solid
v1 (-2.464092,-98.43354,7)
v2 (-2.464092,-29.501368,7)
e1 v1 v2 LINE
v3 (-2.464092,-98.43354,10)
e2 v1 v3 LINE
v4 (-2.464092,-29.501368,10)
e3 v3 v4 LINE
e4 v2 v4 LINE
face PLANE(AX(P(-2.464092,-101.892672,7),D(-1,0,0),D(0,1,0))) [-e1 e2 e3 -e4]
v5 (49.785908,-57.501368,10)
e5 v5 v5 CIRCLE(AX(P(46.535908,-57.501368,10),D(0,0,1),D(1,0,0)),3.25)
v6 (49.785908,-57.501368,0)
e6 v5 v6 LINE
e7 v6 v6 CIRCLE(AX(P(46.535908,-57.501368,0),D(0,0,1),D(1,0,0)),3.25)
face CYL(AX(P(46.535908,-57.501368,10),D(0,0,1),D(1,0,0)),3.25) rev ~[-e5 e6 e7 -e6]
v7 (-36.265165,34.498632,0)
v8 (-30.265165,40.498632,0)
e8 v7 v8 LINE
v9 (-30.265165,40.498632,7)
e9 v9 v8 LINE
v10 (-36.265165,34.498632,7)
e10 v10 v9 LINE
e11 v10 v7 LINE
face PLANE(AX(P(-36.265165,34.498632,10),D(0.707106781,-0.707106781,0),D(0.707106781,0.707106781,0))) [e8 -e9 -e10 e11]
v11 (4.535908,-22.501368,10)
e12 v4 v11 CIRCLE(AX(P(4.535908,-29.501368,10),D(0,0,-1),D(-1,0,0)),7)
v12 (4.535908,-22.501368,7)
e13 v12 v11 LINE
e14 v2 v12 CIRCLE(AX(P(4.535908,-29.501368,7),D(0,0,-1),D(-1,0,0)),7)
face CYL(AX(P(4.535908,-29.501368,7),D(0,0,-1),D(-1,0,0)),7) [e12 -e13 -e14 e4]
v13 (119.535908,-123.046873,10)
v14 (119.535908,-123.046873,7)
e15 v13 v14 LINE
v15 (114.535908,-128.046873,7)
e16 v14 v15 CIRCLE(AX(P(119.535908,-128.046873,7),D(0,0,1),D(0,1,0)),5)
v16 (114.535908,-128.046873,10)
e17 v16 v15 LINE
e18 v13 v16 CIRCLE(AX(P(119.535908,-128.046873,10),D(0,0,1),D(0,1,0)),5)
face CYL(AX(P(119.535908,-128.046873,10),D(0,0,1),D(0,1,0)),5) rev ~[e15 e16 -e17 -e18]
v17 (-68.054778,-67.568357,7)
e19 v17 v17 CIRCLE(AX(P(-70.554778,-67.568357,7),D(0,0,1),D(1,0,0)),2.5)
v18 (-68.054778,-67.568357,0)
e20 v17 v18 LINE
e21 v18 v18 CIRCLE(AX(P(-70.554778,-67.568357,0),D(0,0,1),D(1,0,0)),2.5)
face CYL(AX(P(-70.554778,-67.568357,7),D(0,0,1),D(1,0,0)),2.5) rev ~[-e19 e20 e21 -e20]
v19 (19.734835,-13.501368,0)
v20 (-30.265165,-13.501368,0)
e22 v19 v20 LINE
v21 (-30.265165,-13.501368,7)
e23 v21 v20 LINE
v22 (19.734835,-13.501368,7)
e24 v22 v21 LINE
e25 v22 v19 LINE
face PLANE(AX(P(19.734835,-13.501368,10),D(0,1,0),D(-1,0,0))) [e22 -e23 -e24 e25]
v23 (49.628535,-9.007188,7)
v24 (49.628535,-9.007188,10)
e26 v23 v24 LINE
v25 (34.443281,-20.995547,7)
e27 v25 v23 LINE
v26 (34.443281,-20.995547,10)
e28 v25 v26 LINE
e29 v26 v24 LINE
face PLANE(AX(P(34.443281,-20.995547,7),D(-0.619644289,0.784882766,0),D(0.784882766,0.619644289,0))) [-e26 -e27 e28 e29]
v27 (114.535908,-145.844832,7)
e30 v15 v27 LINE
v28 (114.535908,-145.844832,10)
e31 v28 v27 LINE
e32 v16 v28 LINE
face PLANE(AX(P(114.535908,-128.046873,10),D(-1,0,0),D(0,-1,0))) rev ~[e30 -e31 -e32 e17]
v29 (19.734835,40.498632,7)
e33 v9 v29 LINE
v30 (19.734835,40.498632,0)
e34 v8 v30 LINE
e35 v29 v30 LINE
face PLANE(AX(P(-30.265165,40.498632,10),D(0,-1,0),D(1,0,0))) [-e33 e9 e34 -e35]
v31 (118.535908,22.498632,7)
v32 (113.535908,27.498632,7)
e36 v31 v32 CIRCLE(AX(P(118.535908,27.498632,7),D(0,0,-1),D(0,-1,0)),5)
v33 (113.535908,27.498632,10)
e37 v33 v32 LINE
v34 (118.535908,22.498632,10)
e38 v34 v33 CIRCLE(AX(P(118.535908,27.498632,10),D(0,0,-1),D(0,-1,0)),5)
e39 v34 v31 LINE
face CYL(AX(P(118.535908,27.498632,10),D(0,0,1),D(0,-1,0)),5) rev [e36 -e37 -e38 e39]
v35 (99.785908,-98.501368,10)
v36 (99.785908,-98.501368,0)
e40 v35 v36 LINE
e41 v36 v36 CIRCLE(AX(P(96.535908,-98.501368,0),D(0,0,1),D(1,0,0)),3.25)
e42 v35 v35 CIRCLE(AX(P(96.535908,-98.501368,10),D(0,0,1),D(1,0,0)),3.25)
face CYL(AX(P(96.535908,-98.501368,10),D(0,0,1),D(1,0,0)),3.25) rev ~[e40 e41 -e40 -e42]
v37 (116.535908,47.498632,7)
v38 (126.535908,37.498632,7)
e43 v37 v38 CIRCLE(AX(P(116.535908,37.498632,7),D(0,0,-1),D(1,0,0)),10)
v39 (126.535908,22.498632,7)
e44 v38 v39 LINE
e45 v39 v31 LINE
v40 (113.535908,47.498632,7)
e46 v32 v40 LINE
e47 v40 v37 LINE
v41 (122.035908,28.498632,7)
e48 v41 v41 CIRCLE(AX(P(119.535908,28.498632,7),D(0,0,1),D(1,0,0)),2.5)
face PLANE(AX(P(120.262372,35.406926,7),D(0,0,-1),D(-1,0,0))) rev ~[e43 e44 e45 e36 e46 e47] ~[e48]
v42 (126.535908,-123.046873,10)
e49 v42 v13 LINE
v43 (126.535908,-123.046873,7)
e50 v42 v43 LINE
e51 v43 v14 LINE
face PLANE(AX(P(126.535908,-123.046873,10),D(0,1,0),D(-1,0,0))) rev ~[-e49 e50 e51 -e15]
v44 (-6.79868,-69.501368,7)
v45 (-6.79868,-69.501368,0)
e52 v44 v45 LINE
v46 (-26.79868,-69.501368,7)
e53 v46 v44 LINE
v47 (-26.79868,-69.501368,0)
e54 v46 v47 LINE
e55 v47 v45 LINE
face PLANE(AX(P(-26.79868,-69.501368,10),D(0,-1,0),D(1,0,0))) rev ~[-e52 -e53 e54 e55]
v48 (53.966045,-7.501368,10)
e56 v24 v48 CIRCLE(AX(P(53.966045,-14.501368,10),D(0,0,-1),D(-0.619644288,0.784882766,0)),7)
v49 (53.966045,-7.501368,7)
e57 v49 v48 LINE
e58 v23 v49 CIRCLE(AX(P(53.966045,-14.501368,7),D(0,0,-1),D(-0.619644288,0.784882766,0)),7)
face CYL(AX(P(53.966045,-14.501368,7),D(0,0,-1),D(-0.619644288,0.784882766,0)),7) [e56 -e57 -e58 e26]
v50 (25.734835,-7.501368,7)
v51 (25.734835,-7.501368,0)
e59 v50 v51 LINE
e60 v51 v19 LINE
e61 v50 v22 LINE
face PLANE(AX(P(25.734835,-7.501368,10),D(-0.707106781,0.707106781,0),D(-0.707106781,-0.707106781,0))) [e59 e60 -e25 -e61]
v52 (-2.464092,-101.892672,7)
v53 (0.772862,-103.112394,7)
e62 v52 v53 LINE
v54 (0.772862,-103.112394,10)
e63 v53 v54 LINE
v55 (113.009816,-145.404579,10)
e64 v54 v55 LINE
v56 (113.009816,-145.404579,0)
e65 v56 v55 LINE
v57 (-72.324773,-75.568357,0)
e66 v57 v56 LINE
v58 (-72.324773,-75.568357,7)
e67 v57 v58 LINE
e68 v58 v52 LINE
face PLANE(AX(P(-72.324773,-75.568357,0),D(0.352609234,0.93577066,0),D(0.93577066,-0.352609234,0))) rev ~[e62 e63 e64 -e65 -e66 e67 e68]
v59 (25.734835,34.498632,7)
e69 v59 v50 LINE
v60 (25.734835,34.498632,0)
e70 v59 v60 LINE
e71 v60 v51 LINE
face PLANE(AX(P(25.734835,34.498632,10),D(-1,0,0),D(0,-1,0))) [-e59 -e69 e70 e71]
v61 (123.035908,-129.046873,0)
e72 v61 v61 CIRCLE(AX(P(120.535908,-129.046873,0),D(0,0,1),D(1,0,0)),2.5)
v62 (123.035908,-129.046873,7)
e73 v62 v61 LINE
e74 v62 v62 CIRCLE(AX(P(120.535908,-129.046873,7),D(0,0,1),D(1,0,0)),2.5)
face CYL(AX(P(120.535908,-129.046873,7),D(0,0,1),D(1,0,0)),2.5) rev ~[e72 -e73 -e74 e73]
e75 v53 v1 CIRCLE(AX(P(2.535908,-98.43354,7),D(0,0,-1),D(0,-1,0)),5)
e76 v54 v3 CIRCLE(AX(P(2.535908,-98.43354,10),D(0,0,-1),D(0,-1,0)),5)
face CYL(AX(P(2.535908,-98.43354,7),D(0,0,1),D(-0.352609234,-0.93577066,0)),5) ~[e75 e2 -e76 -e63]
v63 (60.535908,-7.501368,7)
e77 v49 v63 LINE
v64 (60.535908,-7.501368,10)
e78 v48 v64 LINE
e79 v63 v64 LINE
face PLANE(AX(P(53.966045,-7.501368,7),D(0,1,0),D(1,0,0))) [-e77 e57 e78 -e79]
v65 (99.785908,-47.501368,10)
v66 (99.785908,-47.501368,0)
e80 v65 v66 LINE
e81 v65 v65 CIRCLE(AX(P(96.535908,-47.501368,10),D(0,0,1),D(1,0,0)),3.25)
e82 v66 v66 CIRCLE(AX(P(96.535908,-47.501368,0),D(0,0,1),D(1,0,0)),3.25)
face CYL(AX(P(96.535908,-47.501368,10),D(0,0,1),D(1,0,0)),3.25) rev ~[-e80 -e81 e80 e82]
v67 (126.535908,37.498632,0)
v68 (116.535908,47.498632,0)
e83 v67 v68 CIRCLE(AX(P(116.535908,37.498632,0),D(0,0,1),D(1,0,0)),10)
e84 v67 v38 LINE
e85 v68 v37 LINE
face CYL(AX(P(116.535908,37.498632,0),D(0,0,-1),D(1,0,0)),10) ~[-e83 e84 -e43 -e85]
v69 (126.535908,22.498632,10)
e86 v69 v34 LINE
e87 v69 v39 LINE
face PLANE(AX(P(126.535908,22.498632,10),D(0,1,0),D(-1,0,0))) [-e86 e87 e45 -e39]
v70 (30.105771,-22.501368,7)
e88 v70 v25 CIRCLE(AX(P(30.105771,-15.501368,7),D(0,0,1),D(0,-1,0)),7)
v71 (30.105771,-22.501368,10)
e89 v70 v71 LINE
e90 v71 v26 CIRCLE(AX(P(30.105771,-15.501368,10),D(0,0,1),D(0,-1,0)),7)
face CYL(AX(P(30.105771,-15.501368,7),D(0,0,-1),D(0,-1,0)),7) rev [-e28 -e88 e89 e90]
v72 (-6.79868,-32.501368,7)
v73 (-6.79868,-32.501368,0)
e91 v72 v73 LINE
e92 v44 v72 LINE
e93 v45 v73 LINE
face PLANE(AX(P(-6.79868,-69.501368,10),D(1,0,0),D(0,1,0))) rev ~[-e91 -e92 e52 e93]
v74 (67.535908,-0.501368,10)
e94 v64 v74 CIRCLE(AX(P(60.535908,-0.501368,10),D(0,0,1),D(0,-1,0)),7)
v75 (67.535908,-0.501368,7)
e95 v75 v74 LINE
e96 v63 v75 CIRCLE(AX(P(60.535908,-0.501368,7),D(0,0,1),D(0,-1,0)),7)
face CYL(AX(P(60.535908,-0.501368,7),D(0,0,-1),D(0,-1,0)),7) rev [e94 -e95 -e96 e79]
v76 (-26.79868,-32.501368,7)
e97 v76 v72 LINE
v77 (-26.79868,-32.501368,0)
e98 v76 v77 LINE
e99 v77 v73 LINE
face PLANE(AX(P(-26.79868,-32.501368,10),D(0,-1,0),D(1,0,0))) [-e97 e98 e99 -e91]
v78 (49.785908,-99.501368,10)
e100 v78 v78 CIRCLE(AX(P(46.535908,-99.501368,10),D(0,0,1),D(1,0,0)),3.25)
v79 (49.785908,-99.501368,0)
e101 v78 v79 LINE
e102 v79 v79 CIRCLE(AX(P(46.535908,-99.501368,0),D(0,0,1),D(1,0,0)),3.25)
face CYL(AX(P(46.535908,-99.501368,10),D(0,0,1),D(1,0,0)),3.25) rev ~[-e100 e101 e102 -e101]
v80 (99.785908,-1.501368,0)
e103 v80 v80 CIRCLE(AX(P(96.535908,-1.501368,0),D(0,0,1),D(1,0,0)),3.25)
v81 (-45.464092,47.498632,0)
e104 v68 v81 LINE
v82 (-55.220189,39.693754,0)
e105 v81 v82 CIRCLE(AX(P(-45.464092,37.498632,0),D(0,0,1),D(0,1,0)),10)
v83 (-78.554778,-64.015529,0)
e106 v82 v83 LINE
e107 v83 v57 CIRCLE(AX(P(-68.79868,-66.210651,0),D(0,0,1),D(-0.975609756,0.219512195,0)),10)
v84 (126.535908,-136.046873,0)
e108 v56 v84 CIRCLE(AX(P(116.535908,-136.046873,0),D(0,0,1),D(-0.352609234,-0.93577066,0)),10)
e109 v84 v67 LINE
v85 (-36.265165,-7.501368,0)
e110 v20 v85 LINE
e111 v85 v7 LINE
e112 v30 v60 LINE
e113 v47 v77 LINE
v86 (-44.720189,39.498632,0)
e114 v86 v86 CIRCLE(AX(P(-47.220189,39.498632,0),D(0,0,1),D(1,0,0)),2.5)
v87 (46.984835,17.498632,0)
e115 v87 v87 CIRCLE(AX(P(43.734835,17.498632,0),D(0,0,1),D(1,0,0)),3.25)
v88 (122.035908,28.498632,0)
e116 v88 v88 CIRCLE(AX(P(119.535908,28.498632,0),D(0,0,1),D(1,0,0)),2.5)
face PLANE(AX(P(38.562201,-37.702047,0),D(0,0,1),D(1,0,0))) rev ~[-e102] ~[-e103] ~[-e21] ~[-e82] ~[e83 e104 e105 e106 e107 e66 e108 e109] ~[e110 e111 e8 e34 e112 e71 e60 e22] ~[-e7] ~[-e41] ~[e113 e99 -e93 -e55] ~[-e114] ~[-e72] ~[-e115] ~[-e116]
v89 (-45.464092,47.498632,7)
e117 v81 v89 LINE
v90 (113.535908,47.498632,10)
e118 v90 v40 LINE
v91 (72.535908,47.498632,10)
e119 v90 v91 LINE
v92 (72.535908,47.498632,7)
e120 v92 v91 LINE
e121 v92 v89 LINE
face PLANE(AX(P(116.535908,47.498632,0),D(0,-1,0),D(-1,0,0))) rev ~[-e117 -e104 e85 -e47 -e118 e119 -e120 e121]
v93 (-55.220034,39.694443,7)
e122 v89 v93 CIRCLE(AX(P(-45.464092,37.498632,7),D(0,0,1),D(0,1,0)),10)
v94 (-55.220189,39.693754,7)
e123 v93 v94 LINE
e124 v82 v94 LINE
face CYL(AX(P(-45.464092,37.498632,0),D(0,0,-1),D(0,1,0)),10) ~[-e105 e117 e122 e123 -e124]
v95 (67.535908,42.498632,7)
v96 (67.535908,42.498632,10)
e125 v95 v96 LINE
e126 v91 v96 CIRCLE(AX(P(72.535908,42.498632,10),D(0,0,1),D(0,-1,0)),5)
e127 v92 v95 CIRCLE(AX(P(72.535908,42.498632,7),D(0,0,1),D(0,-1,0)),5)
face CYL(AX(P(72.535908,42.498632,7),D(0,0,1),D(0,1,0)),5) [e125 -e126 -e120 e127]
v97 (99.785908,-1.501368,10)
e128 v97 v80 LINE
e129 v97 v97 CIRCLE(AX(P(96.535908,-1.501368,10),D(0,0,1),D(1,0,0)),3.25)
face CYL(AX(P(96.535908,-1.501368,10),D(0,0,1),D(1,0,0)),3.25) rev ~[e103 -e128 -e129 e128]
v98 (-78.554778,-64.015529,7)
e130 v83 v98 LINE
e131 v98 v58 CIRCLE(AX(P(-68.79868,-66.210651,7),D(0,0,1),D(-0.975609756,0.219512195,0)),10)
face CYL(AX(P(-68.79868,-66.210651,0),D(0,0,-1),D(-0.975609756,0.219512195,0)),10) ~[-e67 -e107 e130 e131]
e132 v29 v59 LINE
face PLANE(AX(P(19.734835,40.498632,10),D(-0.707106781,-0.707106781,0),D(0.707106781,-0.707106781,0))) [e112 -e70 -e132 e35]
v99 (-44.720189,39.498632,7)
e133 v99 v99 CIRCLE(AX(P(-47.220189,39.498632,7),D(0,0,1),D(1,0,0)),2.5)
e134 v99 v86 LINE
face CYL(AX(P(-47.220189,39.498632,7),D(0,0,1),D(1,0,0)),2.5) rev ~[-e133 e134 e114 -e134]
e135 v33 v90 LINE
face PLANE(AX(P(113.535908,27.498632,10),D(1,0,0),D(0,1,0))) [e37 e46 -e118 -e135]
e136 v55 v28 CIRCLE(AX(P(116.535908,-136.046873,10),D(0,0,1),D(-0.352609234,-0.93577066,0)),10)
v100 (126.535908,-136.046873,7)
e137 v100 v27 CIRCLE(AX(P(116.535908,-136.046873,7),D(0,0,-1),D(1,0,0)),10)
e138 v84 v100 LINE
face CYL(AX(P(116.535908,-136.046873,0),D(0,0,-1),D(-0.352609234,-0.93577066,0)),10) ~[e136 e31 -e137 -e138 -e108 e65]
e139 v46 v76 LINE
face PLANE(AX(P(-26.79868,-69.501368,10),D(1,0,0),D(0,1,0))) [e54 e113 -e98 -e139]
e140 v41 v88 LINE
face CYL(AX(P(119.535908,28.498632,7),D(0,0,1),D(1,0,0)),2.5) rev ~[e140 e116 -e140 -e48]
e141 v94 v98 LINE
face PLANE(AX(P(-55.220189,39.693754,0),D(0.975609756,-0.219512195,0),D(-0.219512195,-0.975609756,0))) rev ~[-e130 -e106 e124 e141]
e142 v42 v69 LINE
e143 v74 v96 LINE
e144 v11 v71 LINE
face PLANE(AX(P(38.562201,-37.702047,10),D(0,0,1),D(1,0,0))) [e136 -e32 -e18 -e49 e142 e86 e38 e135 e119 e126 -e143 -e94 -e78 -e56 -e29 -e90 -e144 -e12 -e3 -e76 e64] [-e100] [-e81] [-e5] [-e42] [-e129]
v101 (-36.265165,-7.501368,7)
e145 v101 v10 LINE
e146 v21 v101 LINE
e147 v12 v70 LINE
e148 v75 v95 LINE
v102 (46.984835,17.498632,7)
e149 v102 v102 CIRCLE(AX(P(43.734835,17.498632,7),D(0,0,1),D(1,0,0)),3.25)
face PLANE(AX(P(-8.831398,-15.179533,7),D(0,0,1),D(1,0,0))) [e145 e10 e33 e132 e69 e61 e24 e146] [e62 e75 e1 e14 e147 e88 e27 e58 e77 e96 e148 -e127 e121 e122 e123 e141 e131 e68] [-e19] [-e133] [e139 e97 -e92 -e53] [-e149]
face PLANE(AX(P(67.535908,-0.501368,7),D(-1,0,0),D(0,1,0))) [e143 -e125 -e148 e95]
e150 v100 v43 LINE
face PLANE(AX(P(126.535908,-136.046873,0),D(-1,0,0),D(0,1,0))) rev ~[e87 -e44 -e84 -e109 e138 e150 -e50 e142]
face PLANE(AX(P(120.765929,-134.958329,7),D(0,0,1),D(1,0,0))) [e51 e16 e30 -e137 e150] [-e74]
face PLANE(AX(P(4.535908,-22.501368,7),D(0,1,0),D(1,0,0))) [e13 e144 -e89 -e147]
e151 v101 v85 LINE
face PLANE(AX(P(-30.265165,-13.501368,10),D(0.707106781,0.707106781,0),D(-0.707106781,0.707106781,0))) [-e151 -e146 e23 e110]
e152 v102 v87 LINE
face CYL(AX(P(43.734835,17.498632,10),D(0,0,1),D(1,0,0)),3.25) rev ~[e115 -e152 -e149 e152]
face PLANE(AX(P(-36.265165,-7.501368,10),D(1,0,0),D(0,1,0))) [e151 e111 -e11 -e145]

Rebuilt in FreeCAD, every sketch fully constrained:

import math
import FreeCAD as App
import Part
import Sketcher


def edges_at(feature, points):
    """Names of the edges that pass closest to the given points."""
    edges = feature.Shape.Edges
    near = lambda p: min(range(len(edges)), key=lambda i: edges[i].distToShape(Part.Vertex(*p))[0])
    return sorted({f"Edge{near(p) + 1}" for p in points})

doc = App.newDocument("Part")
params = doc.addObject("Spreadsheet::Sheet", "Params")
for row, (alias, value) in enumerate([
    ("sketch1_radius", "10 mm"),
    ("sketch1_width", "162 mm"),
    ("pad1_length", "10 mm"),
    ("sketch2_diameter", "6.5 mm"),
    ("sketch2_width", "20 mm"),
    ("sketch2_width2", "50 mm"),
    ("sketch2_height", "37 mm"),
    ("sketch2_height2", "42 mm"),
    ("pocket1_length", "10 mm"),
    ("sketch3_radius", "7 mm"),
    ("sketch3_radius2", "10 mm"),
    ("sketch3_diameter", "6.5 mm"),
    ("sketch3_width", "113 mm"),
    ("sketch3_width2", "20 mm"),
    ("pocket2_length", "3 mm"),
    ("fillet_radius", "5 mm"),
    ("sketch4_radius", "5 mm"),
    ("sketch4_width", "8 mm"),
    ("sketch4_width2", "7 mm"),
    ("sketch4_height", "25 mm"),
    ("sketch4_height2", "18 mm"),
    ("pocket3_length", "3 mm"),
    ("sketch5_diameter", "5 mm"),
    ("pocket4_length", "7 mm"),
], start=1):
    params.set(f"A{row}", alias)
    params.set(f"B{row}", "=" + value)
    params.setAlias(f"B{row}", alias)

body = doc.addObject("PartDesign::Body", "Body")

# Sketch on XY plane
sketch1 = body.newObject("Sketcher::SketchObject", "Sketch")
sketch1.AttachmentSupport = (doc.getObject("XY_Plane"), [""])
sketch1.MapMode = "FlatFace"
sketch1.addGeometry(Part.LineSegment(App.Vector(-72, -76, 0), App.Vector(113, -145, 0)), False)
sketch1.addGeometry(Part.ArcOfCircle(Part.Circle(App.Vector(117, -136, 0), App.Vector(0, 0, 1), 10), math.radians(-111), math.radians(0)), False)
sketch1.addGeometry(Part.LineSegment(App.Vector(127, -136, 0), App.Vector(127, 37, 0)), False)
sketch1.addGeometry(Part.ArcOfCircle(Part.Circle(App.Vector(117, 37, 0), App.Vector(0, 0, 1), 10), math.radians(0), math.radians(90)), False)
sketch1.addGeometry(Part.LineSegment(App.Vector(117, 47, 0), App.Vector(-45, 47, 0)), False)
sketch1.addGeometry(Part.ArcOfCircle(Part.Circle(App.Vector(-45, 37, 0), App.Vector(0, 0, 1), 10), math.radians(90), math.radians(167)), False)
sketch1.addGeometry(Part.LineSegment(App.Vector(-55, 40, 0), App.Vector(-79, -64, 0)), False)
sketch1.addGeometry(Part.ArcOfCircle(Part.Circle(App.Vector(-69, -66, 0), App.Vector(0, 0, 1), 10), math.radians(167), math.radians(249)), False)
sketch1.addConstraint(Sketcher.Constraint("Tangent", 0, 2, 1, 1))
sketch1.addConstraint(Sketcher.Constraint("Tangent", 1, 2, 2, 1))
sketch1.addConstraint(Sketcher.Constraint("Tangent", 2, 2, 3, 1))
sketch1.addConstraint(Sketcher.Constraint("Tangent", 3, 2, 4, 1))
sketch1.addConstraint(Sketcher.Constraint("Tangent", 4, 2, 5, 1))
sketch1.addConstraint(Sketcher.Constraint("Tangent", 5, 2, 6, 1))
sketch1.addConstraint(Sketcher.Constraint("Tangent", 6, 2, 7, 1))
sketch1.addConstraint(Sketcher.Constraint("Tangent", 7, 2, 0, 1))
sketch1.addConstraint(Sketcher.Constraint("Vertical", 2))
sketch1.addConstraint(Sketcher.Constraint("Horizontal", 4))
sketch1.addConstraint(Sketcher.Constraint("Equal", 1, 3))
sketch1.addConstraint(Sketcher.Constraint("Equal", 3, 5))
sketch1.addConstraint(Sketcher.Constraint("Equal", 5, 7))
sketch1.addConstraint(Sketcher.Constraint("Radius", 1, 10.0))
sketch1.addConstraint(Sketcher.Constraint("DistanceX", 4, 2, 4, 1, 162.0))
sketch1.addConstraint(Sketcher.Constraint("DistanceY", 2, 1, 2, 2, 173.545505))
sketch1.addConstraint(Sketcher.Constraint("DistanceX", -1, 1, 1, 3, 116.535908))
sketch1.addConstraint(Sketcher.Constraint("DistanceX", 7, 3, -1, 1, 68.79868))
sketch1.addConstraint(Sketcher.Constraint("DistanceY", 7, 3, -1, 1, 66.210651))
sketch1.addConstraint(Sketcher.Constraint("DistanceY", 0, 2, -1, 1, 145.404579))
sketch1.setExpression("Constraints[13]", "Params.sketch1_radius")
sketch1.setExpression("Constraints[14]", "Params.sketch1_width")
pad1 = body.newObject("PartDesign::Pad", "Pad")
pad1.Profile = sketch1
pad1.setExpression("Length", "Params.pad1_length")

# Sketch on XY plane
sketch2 = body.newObject("Sketcher::SketchObject", "Sketch001")
sketch2.AttachmentSupport = (doc.getObject("XY_Plane"), [""])
sketch2.MapMode = "FlatFace"
sketch2.AttachmentOffset = App.Placement(App.Vector(0, 0, 10), App.Rotation())
sketch2.addGeometry(Part.Circle(App.Vector(43.7, 17.5, 0), App.Vector(0, 0, 1), 3.2), False)
sketch2.addGeometry(Part.Circle(App.Vector(96.5, -1.5, 0), App.Vector(0, 0, 1), 3.2), False)
sketch2.addGeometry(Part.Circle(App.Vector(96.5, -47.5, 0), App.Vector(0, 0, 1), 3.2), False)
sketch2.addGeometry(Part.Circle(App.Vector(96.5, -98.5, 0), App.Vector(0, 0, 1), 3.2), False)
sketch2.addGeometry(Part.Circle(App.Vector(46.5, -57.5, 0), App.Vector(0, 0, 1), 3.2), False)
sketch2.addGeometry(Part.Circle(App.Vector(46.5, -99.5, 0), App.Vector(0, 0, 1), 3.2), False)
sketch2.addGeometry(Part.LineSegment(App.Vector(-26.8, -32.5, 0), App.Vector(-26.8, -69.5, 0)), False)
sketch2.addGeometry(Part.LineSegment(App.Vector(-26.8, -69.5, 0), App.Vector(-6.8, -69.5, 0)), False)
sketch2.addGeometry(Part.LineSegment(App.Vector(-6.8, -69.5, 0), App.Vector(-6.8, -32.5, 0)), False)
sketch2.addGeometry(Part.LineSegment(App.Vector(-6.8, -32.5, 0), App.Vector(-26.8, -32.5, 0)), False)
sketch2.addGeometry(Part.LineSegment(App.Vector(19.7, 40.5, 0), App.Vector(-30.3, 40.5, 0)), False)
sketch2.addGeometry(Part.LineSegment(App.Vector(-30.3, 40.5, 0), App.Vector(-36.3, 34.5, 0)), False)
sketch2.addGeometry(Part.LineSegment(App.Vector(-36.3, 34.5, 0), App.Vector(-36.3, -7.5, 0)), False)
sketch2.addGeometry(Part.LineSegment(App.Vector(-36.3, -7.5, 0), App.Vector(-30.3, -13.5, 0)), False)
sketch2.addGeometry(Part.LineSegment(App.Vector(-30.3, -13.5, 0), App.Vector(19.7, -13.5, 0)), False)
sketch2.addGeometry(Part.LineSegment(App.Vector(19.7, -13.5, 0), App.Vector(25.7, -7.5, 0)), False)
sketch2.addGeometry(Part.LineSegment(App.Vector(25.7, -7.5, 0), App.Vector(25.7, 34.5, 0)), False)
sketch2.addGeometry(Part.LineSegment(App.Vector(25.7, 34.5, 0), App.Vector(19.7, 40.5, 0)), False)
sketch2.addConstraint(Sketcher.Constraint("Coincident", 6, 2, 7, 1))
sketch2.addConstraint(Sketcher.Constraint("Coincident", 7, 2, 8, 1))
sketch2.addConstraint(Sketcher.Constraint("Coincident", 8, 2, 9, 1))
sketch2.addConstraint(Sketcher.Constraint("Coincident", 9, 2, 6, 1))
sketch2.addConstraint(Sketcher.Constraint("Coincident", 10, 2, 11, 1))
sketch2.addConstraint(Sketcher.Constraint("Coincident", 11, 2, 12, 1))
sketch2.addConstraint(Sketcher.Constraint("Coincident", 12, 2, 13, 1))
sketch2.addConstraint(Sketcher.Constraint("Coincident", 13, 2, 14, 1))
sketch2.addConstraint(Sketcher.Constraint("Coincident", 14, 2, 15, 1))
sketch2.addConstraint(Sketcher.Constraint("Coincident", 15, 2, 16, 1))
sketch2.addConstraint(Sketcher.Constraint("Coincident", 16, 2, 17, 1))
sketch2.addConstraint(Sketcher.Constraint("Coincident", 17, 2, 10, 1))
sketch2.addConstraint(Sketcher.Constraint("Vertical", 6))
sketch2.addConstraint(Sketcher.Constraint("Horizontal", 7))
sketch2.addConstraint(Sketcher.Constraint("Vertical", 8))
sketch2.addConstraint(Sketcher.Constraint("Horizontal", 9))
sketch2.addConstraint(Sketcher.Constraint("Horizontal", 10))
sketch2.addConstraint(Sketcher.Constraint("Vertical", 12))
sketch2.addConstraint(Sketcher.Constraint("Horizontal", 14))
sketch2.addConstraint(Sketcher.Constraint("Vertical", 16))
sketch2.addConstraint(Sketcher.Constraint("Equal", 0, 1))
sketch2.addConstraint(Sketcher.Constraint("Equal", 1, 2))
sketch2.addConstraint(Sketcher.Constraint("Equal", 2, 3))
sketch2.addConstraint(Sketcher.Constraint("Equal", 3, 4))
sketch2.addConstraint(Sketcher.Constraint("Equal", 4, 5))
sketch2.addConstraint(Sketcher.Constraint("Perpendicular", 11, 13))
sketch2.addConstraint(Sketcher.Constraint("Perpendicular", 13, 15))
sketch2.addConstraint(Sketcher.Constraint("Perpendicular", 15, 17))
sketch2.addConstraint(Sketcher.Constraint("Horizontal", 12, 2, 15, 2))
sketch2.addConstraint(Sketcher.Constraint("Horizontal", 11, 2, 16, 2))
sketch2.addConstraint(Sketcher.Constraint("Vertical", 1, 3, 2, 3))
sketch2.addConstraint(Sketcher.Constraint("Vertical", 2, 3, 3, 3))
sketch2.addConstraint(Sketcher.Constraint("Vertical", 4, 3, 5, 3))
sketch2.addConstraint(Sketcher.Constraint("Vertical", 10, 2, 13, 2))
sketch2.addConstraint(Sketcher.Constraint("Vertical", 14, 2, 17, 2))
sketch2.addConstraint(Sketcher.Constraint("Diameter", 0, 6.5))
sketch2.addConstraint(Sketcher.Constraint("DistanceX", 7, 1, 7, 2, 20.0))
sketch2.addConstraint(Sketcher.Constraint("DistanceX", 10, 2, 10, 1, 50.0))
sketch2.addConstraint(Sketcher.Constraint("DistanceY", 6, 2, 6, 1, 37.0))
sketch2.addConstraint(Sketcher.Constraint("DistanceY", 12, 2, 12, 1, 42.0))
sketch2.addConstraint(Sketcher.Constraint("DistanceY", 1, 3, 0, 3, 19.0))
sketch2.addConstraint(Sketcher.Constraint("DistanceY", 2, 3, 1, 3, 46.0))
sketch2.addConstraint(Sketcher.Constraint("DistanceY", 3, 3, 2, 3, 51.0))
sketch2.addConstraint(Sketcher.Constraint("DistanceX", 4, 3, 2, 3, 50.0))
sketch2.addConstraint(Sketcher.Constraint("DistanceY", 4, 3, 2, 3, 10.0))
sketch2.addConstraint(Sketcher.Constraint("DistanceY", 5, 3, 4, 3, 42.0))
sketch2.addConstraint(Sketcher.Constraint("DistanceY", 6, 2, 4, 3, 12.0))
sketch2.addConstraint(Sketcher.Constraint("DistanceY", 9, 2, 10, 2, 73.0))
sketch2.addConstraint(Sketcher.Constraint("DistanceX", 10, 2, 0, 3, 74.0))
sketch2.addConstraint(Sketcher.Constraint("DistanceX", 11, 2, 10, 2, 6.0))
sketch2.addConstraint(Sketcher.Constraint("DistanceX", -1, 1, 1, 3, 96.535908))
sketch2.addConstraint(Sketcher.Constraint("DistanceX", 6, 2, -1, 1, 26.79868))
sketch2.addConstraint(Sketcher.Constraint("DistanceX", -1, 1, 0, 3, 43.734835))
sketch2.addConstraint(Sketcher.Constraint("DistanceY", -1, 1, 0, 3, 17.498632))
sketch2.setExpression("Constraints[35]", "Params.sketch2_diameter")
sketch2.setExpression("Constraints[36]", "Params.sketch2_width")
sketch2.setExpression("Constraints[37]", "Params.sketch2_width2")
sketch2.setExpression("Constraints[38]", "Params.sketch2_height")
sketch2.setExpression("Constraints[39]", "Params.sketch2_height2")
pocket1 = body.newObject("PartDesign::Pocket", "Pocket")
pocket1.Profile = sketch2
pocket1.setExpression("Length", "Params.pocket1_length")

# Sketch on XY plane
sketch3 = body.newObject("Sketcher::SketchObject", "Sketch002")
sketch3.AttachmentSupport = (doc.getObject("XY_Plane"), [""])
sketch3.MapMode = "FlatFace"
sketch3.AttachmentOffset = App.Placement(App.Vector(0, 0, 7), App.Rotation())
sketch3.addGeometry(Part.LineSegment(App.Vector(-72.3248, -75.5684, 0), App.Vector(-2.4641, -101.8927, 0)), False)
sketch3.addGeometry(Part.LineSegment(App.Vector(-2.4641, -101.8927, 0), App.Vector(-2.4641, -29.5014, 0)), False)
sketch3.addGeometry(Part.ArcOfCircle(Part.Circle(App.Vector(4.5359, -29.5014, 0), App.Vector(0, 0, 1), 7), math.radians(90), math.radians(180)), False)
sketch3.addGeometry(Part.LineSegment(App.Vector(4.5359, -22.5014, 0), App.Vector(30.1058, -22.5014, 0)), False)
sketch3.addGeometry(Part.ArcOfCircle(Part.Circle(App.Vector(30.1058, -15.5014, 0), App.Vector(0, 0, 1), 7), math.radians(-90), math.radians(-52)), False)
sketch3.addGeometry(Part.LineSegment(App.Vector(34.4433, -20.9955, 0), App.Vector(49.6285, -9.0072, 0)), False)
sketch3.addGeometry(Part.ArcOfCircle(Part.Circle(App.Vector(53.966, -14.5014, 0), App.Vector(0, 0, 1), 7), math.radians(90), math.radians(128)), False)
sketch3.addGeometry(Part.LineSegment(App.Vector(53.966, -7.5014, 0), App.Vector(60.5359, -7.5014, 0)), False)
sketch3.addGeometry(Part.ArcOfCircle(Part.Circle(App.Vector(60.5359, -0.5014, 0), App.Vector(0, 0, 1), 7), math.radians(-90), math.radians(0)), False)
sketch3.addGeometry(Part.LineSegment(App.Vector(67.5359, -0.5014, 0), App.Vector(67.5359, 47.4986, 0)), False)
sketch3.addGeometry(Part.LineSegment(App.Vector(67.5359, 47.4986, 0), App.Vector(-45.4641, 47.4986, 0)), False)
sketch3.addGeometry(Part.ArcOfCircle(Part.Circle(App.Vector(-45.4641, 37.4986, 0), App.Vector(0, 0, 1), 10), math.radians(90), math.radians(167)), False)
sketch3.addGeometry(Part.LineSegment(App.Vector(-55.22, 39.6944, 0), App.Vector(-55.2202, 39.6938, 0)), False)
sketch3.addGeometry(Part.LineSegment(App.Vector(-55.2202, 39.6938, 0), App.Vector(-78.5548, -64.0155, 0)), False)
sketch3.addGeometry(Part.ArcOfCircle(Part.Circle(App.Vector(-68.7987, -66.2107, 0), App.Vector(0, 0, 1), 10), math.radians(167), math.radians(249)), False)
sketch3.addGeometry(Part.LineSegment(App.Vector(-6.7987, -69.5014, 0), App.Vector(-26.7987, -69.5014, 0)), False)
sketch3.addGeometry(Part.LineSegment(App.Vector(-26.7987, -69.5014, 0), App.Vector(-26.7987, -32.5014, 0)), False)
sketch3.addGeometry(Part.LineSegment(App.Vector(-26.7987, -32.5014, 0), App.Vector(-6.7987, -32.5014, 0)), False)
sketch3.addGeometry(Part.LineSegment(App.Vector(-6.7987, -32.5014, 0), App.Vector(-6.7987, -69.5014, 0)), False)
sketch3.addGeometry(Part.LineSegment(App.Vector(19.7348, -13.5014, 0), App.Vector(-30.2652, -13.5014, 0)), False)
sketch3.addGeometry(Part.LineSegment(App.Vector(-30.2652, -13.5014, 0), App.Vector(-36.2652, -7.5014, 0)), False)
sketch3.addGeometry(Part.LineSegment(App.Vector(-36.2652, -7.5014, 0), App.Vector(-36.2652, 34.4986, 0)), False)
sketch3.addGeometry(Part.LineSegment(App.Vector(-36.2652, 34.4986, 0), App.Vector(-30.2652, 40.4986, 0)), False)
sketch3.addGeometry(Part.LineSegment(App.Vector(-30.2652, 40.4986, 0), App.Vector(19.7348, 40.4986, 0)), False)
sketch3.addGeometry(Part.LineSegment(App.Vector(19.7348, 40.4986, 0), App.Vector(25.7348, 34.4986, 0)), False)
sketch3.addGeometry(Part.LineSegment(App.Vector(25.7348, 34.4986, 0), App.Vector(25.7348, -7.5014, 0)), False)
sketch3.addGeometry(Part.LineSegment(App.Vector(25.7348, -7.5014, 0), App.Vector(19.7348, -13.5014, 0)), False)
sketch3.addGeometry(Part.Circle(App.Vector(43.7348, 17.4986, 0), App.Vector(0, 0, 1), 3.25), False)
sketch3.addConstraint(Sketcher.Constraint("Coincident", 0, 2, 1, 1))
sketch3.addConstraint(Sketcher.Constraint("Tangent", 1, 2, 2, 2))
sketch3.addConstraint(Sketcher.Constraint("Tangent", 2, 1, 3, 1))
sketch3.addConstraint(Sketcher.Constraint("Tangent", 3, 2, 4, 1))
sketch3.addConstraint(Sketcher.Constraint("Tangent", 4, 2, 5, 1))
sketch3.addConstraint(Sketcher.Constraint("Tangent", 5, 2, 6, 2))
sketch3.addConstraint(Sketcher.Constraint("Tangent", 6, 1, 7, 1))
sketch3.addConstraint(Sketcher.Constraint("Tangent", 7, 2, 8, 1))
sketch3.addConstraint(Sketcher.Constraint("Tangent", 8, 2, 9, 1))
sketch3.addConstraint(Sketcher.Constraint("Coincident", 9, 2, 10, 1))
sketch3.addConstraint(Sketcher.Constraint("Tangent", 10, 2, 11, 1))
sketch3.addConstraint(Sketcher.Constraint("Tangent", 11, 2, 12, 1))
sketch3.addConstraint(Sketcher.Constraint("Coincident", 12, 2, 13, 1))
sketch3.addConstraint(Sketcher.Constraint("Tangent", 13, 2, 14, 1))
sketch3.addConstraint(Sketcher.Constraint("Tangent", 14, 2, 0, 1))
sketch3.addConstraint(Sketcher.Constraint("Coincident", 15, 2, 16, 1))
sketch3.addConstraint(Sketcher.Constraint("Coincident", 16, 2, 17, 1))
sketch3.addConstraint(Sketcher.Constraint("Coincident", 17, 2, 18, 1))
sketch3.addConstraint(Sketcher.Constraint("Coincident", 18, 2, 15, 1))
sketch3.addConstraint(Sketcher.Constraint("Coincident", 19, 2, 20, 1))
sketch3.addConstraint(Sketcher.Constraint("Coincident", 20, 2, 21, 1))
sketch3.addConstraint(Sketcher.Constraint("Coincident", 21, 2, 22, 1))
sketch3.addConstraint(Sketcher.Constraint("Coincident", 22, 2, 23, 1))
sketch3.addConstraint(Sketcher.Constraint("Coincident", 23, 2, 24, 1))
sketch3.addConstraint(Sketcher.Constraint("Coincident", 24, 2, 25, 1))
sketch3.addConstraint(Sketcher.Constraint("Coincident", 25, 2, 26, 1))
sketch3.addConstraint(Sketcher.Constraint("Coincident", 26, 2, 19, 1))
sketch3.addConstraint(Sketcher.Constraint("Vertical", 1))
sketch3.addConstraint(Sketcher.Constraint("Horizontal", 3))
sketch3.addConstraint(Sketcher.Constraint("Horizontal", 7))
sketch3.addConstraint(Sketcher.Constraint("Vertical", 9))
sketch3.addConstraint(Sketcher.Constraint("Horizontal", 10))
sketch3.addConstraint(Sketcher.Constraint("Horizontal", 15))
sketch3.addConstraint(Sketcher.Constraint("Vertical", 16))
sketch3.addConstraint(Sketcher.Constraint("Horizontal", 17))
sketch3.addConstraint(Sketcher.Constraint("Vertical", 18))
sketch3.addConstraint(Sketcher.Constraint("Horizontal", 19))
sketch3.addConstraint(Sketcher.Constraint("Vertical", 21))
sketch3.addConstraint(Sketcher.Constraint("Horizontal", 23))
sketch3.addConstraint(Sketcher.Constraint("Vertical", 25))
sketch3.addConstraint(Sketcher.Constraint("Equal", 2, 4))
sketch3.addConstraint(Sketcher.Constraint("Equal", 4, 6))
sketch3.addConstraint(Sketcher.Constraint("Equal", 6, 8))
sketch3.addConstraint(Sketcher.Constraint("Equal", 11, 14))
sketch3.addConstraint(Sketcher.Constraint("Perpendicular", 20, 22))
sketch3.addConstraint(Sketcher.Constraint("Perpendicular", 22, 24))
sketch3.addConstraint(Sketcher.Constraint("Perpendicular", 24, 26))
sketch3.addConstraint(Sketcher.Constraint("Horizontal", 7, 2, 20, 2))
sketch3.addConstraint(Sketcher.Constraint("Horizontal", 21, 2, 24, 2))
sketch3.addConstraint(Sketcher.Constraint("Horizontal", 20, 2, 25, 2))
sketch3.addConstraint(Sketcher.Constraint("Vertical", 19, 2, 22, 2))
sketch3.addConstraint(Sketcher.Constraint("Vertical", 23, 2, 26, 2))
sketch3.addConstraint(Sketcher.Constraint("Radius", 2, 7.0))
sketch3.addConstraint(Sketcher.Constraint("Radius", 11, 10.0))
sketch3.addConstraint(Sketcher.Constraint("Diameter", 27, 6.5))
sketch3.addConstraint(Sketcher.Constraint("DistanceX", 10, 2, 10, 1, 113.0))
sketch3.addConstraint(Sketcher.Constraint("DistanceX", 15, 2, 15, 1, 20.0))
sketch3.addConstraint(Sketcher.Constraint("DistanceX", 19, 2, 19, 1, 50.0))
sketch3.addConstraint(Sketcher.Constraint("DistanceY", 9, 1, 9, 2, 48.0))
sketch3.addConstraint(Sketcher.Constraint("DistanceY", 16, 1, 16, 2, 37.0))
sketch3.addConstraint(Sketcher.Constraint("DistanceY", 21, 1, 21, 2, 42.0))
sketch3.addConstraint(Sketcher.Constraint("DistanceY", 4, 3, 6, 3, 1.0))
sketch3.addConstraint(Sketcher.Constraint("DistanceX", 2, 3, 8, 3, 56.0))
sketch3.addConstraint(Sketcher.Constraint("DistanceY", 8, 3, 27, 3, 18.0))
sketch3.addConstraint(Sketcher.Constraint("DistanceX", 14, 3, 15, 2, 42.0))
sketch3.addConstraint(Sketcher.Constraint("DistanceY", 15, 2, 1, 2, 40.0))
sketch3.addConstraint(Sketcher.Constraint("DistanceY", 16, 2, 19, 2, 19.0))
sketch3.addConstraint(Sketcher.Constraint("DistanceX", 23, 2, 27, 3, 24.0))
sketch3.addConstraint(Sketcher.Constraint("DistanceX", 24, 2, 5, 2, 23.893701))
sketch3.addConstraint(Sketcher.Constraint("DistanceX", 3, 1, 3, 2, 25.569863))
sketch3.addConstraint(Sketcher.Constraint("DistanceX", 7, 1, 7, 2, 6.569863))
sketch3.addConstraint(Sketcher.Constraint("DistanceY", 1, 1, 1, 2, 72.391304))
sketch3.addConstraint(Sketcher.Constraint("DistanceX", -1, 1, 2, 3, 4.535908))
sketch3.addConstraint(Sketcher.Constraint("DistanceX", 14, 3, -1, 1, 68.79868))
sketch3.addConstraint(Sketcher.Constraint("DistanceY", 14, 3, -1, 1, 66.210651))
sketch3.addConstraint(Sketcher.Constraint("DistanceY", 0, 2, -1, 1, 101.892672))
sketch3.addConstraint(Sketcher.Constraint("DistanceX", 12, 2, -1, 1, 55.220189))
sketch3.addConstraint(Sketcher.Constraint("DistanceY", 11, 3, 11, 2, 2.19581))
sketch3.setExpression("Constraints[52]", "Params.sketch3_radius")
sketch3.setExpression("Constraints[53]", "Params.sketch3_radius2")
sketch3.setExpression("Constraints[54]", "Params.sketch3_diameter")
sketch3.setExpression("Constraints[55]", "Params.sketch3_width")
sketch3.setExpression("Constraints[56]", "Params.sketch3_width2")
pocket2 = body.newObject("PartDesign::Pocket", "Pocket001")
pocket2.Profile = sketch3
pocket2.setExpression("Length", "Params.pocket2_length")
pocket2.Reversed = True
doc.recompute()

fillet = body.newObject("PartDesign::Fillet", "Fillet")
fillet.Base = (pocket2, edges_at(pocket2, [(-2.464, -101.893, 8.5), (67.536, 47.499, 8.5)]))
fillet.setExpression("Radius", "Params.fillet_radius")

# Sketch on XY plane
sketch4 = body.newObject("Sketcher::SketchObject", "Sketch003")
sketch4.AttachmentSupport = (doc.getObject("XY_Plane"), [""])
sketch4.MapMode = "FlatFace"
sketch4.AttachmentOffset = App.Placement(App.Vector(0, 0, 10), App.Rotation())
sketch4.addGeometry(Part.LineSegment(App.Vector(119, 22, 0), App.Vector(127, 22, 0)), False)
sketch4.addGeometry(Part.LineSegment(App.Vector(127, 22, 0), App.Vector(127, 47, 0)), False)
sketch4.addGeometry(Part.LineSegment(App.Vector(127, 47, 0), App.Vector(114, 47, 0)), False)
sketch4.addGeometry(Part.LineSegment(App.Vector(114, 47, 0), App.Vector(114, 27, 0)), False)
sketch4.addGeometry(Part.ArcOfCircle(Part.Circle(App.Vector(119, 27, 0), App.Vector(0, 0, 1), 5), math.radians(180), math.radians(270)), False)
sketch4.addGeometry(Part.LineSegment(App.Vector(127, -123, 0), App.Vector(120, -123, 0)), False)
sketch4.addGeometry(Part.ArcOfCircle(Part.Circle(App.Vector(120, -128, 0), App.Vector(0, 0, 1), 5), math.radians(90), math.radians(180)), False)
sketch4.addGeometry(Part.LineSegment(App.Vector(115, -128, 0), App.Vector(115, -146, 0)), False)
sketch4.addGeometry(Part.LineSegment(App.Vector(115, -146, 0), App.Vector(127, -146, 0)), False)
sketch4.addGeometry(Part.LineSegment(App.Vector(127, -146, 0), App.Vector(127, -123, 0)), False)
sketch4.addConstraint(Sketcher.Constraint("Coincident", 0, 2, 1, 1))
sketch4.addConstraint(Sketcher.Constraint("Coincident", 1, 2, 2, 1))
sketch4.addConstraint(Sketcher.Constraint("Coincident", 2, 2, 3, 1))
sketch4.addConstraint(Sketcher.Constraint("Tangent", 3, 2, 4, 1))
sketch4.addConstraint(Sketcher.Constraint("Tangent", 4, 2, 0, 1))
sketch4.addConstraint(Sketcher.Constraint("Tangent", 5, 2, 6, 1))
sketch4.addConstraint(Sketcher.Constraint("Tangent", 6, 2, 7, 1))
sketch4.addConstraint(Sketcher.Constraint("Coincident", 7, 2, 8, 1))
sketch4.addConstraint(Sketcher.Constraint("Coincident", 8, 2, 9, 1))
sketch4.addConstraint(Sketcher.Constraint("Coincident", 9, 2, 5, 1))
sketch4.addConstraint(Sketcher.Constraint("Horizontal", 0))
sketch4.addConstraint(Sketcher.Constraint("Vertical", 1))
sketch4.addConstraint(Sketcher.Constraint("Horizontal", 2))
sketch4.addConstraint(Sketcher.Constraint("Vertical", 3))
sketch4.addConstraint(Sketcher.Constraint("Horizontal", 5))
sketch4.addConstraint(Sketcher.Constraint("Vertical", 7))
sketch4.addConstraint(Sketcher.Constraint("Horizontal", 8))
sketch4.addConstraint(Sketcher.Constraint("Vertical", 9))
sketch4.addConstraint(Sketcher.Constraint("Equal", 4, 6))
sketch4.addConstraint(Sketcher.Constraint("Vertical", 1, 2, 8, 2))
sketch4.addConstraint(Sketcher.Constraint("Radius", 4, 5.0))
sketch4.addConstraint(Sketcher.Constraint("DistanceX", 0, 1, 0, 2, 8.0))
sketch4.addConstraint(Sketcher.Constraint("DistanceX", 5, 2, 5, 1, 7.0))
sketch4.addConstraint(Sketcher.Constraint("DistanceY", 1, 1, 1, 2, 25.0))
sketch4.addConstraint(Sketcher.Constraint("DistanceY", 7, 2, 7, 1, 18.0))
sketch4.addConstraint(Sketcher.Constraint("DistanceX", -1, 1, 4, 3, 118.535908))
sketch4.addConstraint(Sketcher.Constraint("DistanceY", -1, 1, 4, 3, 27.498632))
sketch4.addConstraint(Sketcher.Constraint("DistanceY", 6, 3, -1, 1, 128.046873))
sketch4.setExpression("Constraints[20]", "Params.sketch4_radius")
sketch4.setExpression("Constraints[21]", "Params.sketch4_width")
sketch4.setExpression("Constraints[22]", "Params.sketch4_width2")
sketch4.setExpression("Constraints[23]", "Params.sketch4_height")
sketch4.setExpression("Constraints[24]", "Params.sketch4_height2")
pocket3 = body.newObject("PartDesign::Pocket", "Pocket002")
pocket3.Profile = sketch4
pocket3.setExpression("Length", "Params.pocket3_length")

# Sketch on XY plane
sketch5 = body.newObject("Sketcher::SketchObject", "Sketch004")
sketch5.AttachmentSupport = (doc.getObject("XY_Plane"), [""])
sketch5.MapMode = "FlatFace"
sketch5.AttachmentOffset = App.Placement(App.Vector(0, 0, 7), App.Rotation())
sketch5.addGeometry(Part.Circle(App.Vector(120.5, -129, 0), App.Vector(0, 0, 1), 2.5), False)
sketch5.addGeometry(Part.Circle(App.Vector(119.5, 28.5, 0), App.Vector(0, 0, 1), 2.5), False)
sketch5.addGeometry(Part.Circle(App.Vector(-47.2, 39.5, 0), App.Vector(0, 0, 1), 2.5), False)
sketch5.addGeometry(Part.Circle(App.Vector(-70.6, -67.6, 0), App.Vector(0, 0, 1), 2.5), False)
sketch5.addConstraint(Sketcher.Constraint("Equal", 0, 1))
sketch5.addConstraint(Sketcher.Constraint("Equal", 1, 2))
sketch5.addConstraint(Sketcher.Constraint("Equal", 2, 3))
sketch5.addConstraint(Sketcher.Constraint("Diameter", 0, 5.0))
sketch5.addConstraint(Sketcher.Constraint("DistanceX", 1, 3, 0, 3, 1.0))
sketch5.addConstraint(Sketcher.Constraint("DistanceY", 1, 3, 2, 3, 11.0))
sketch5.addConstraint(Sketcher.Constraint("DistanceX", -1, 1, 0, 3, 120.535908))
sketch5.addConstraint(Sketcher.Constraint("DistanceX", 2, 3, -1, 1, 47.220189))
sketch5.addConstraint(Sketcher.Constraint("DistanceX", 3, 3, -1, 1, 70.554778))
sketch5.addConstraint(Sketcher.Constraint("DistanceY", 3, 3, 2, 3, 107.06699))
sketch5.addConstraint(Sketcher.Constraint("DistanceY", 0, 3, -1, 1, 129.046873))
sketch5.addConstraint(Sketcher.Constraint("DistanceY", -1, 1, 1, 3, 28.498632))
sketch5.setExpression("Constraints[3]", "Params.sketch5_diameter")
pocket4 = body.newObject("PartDesign::Pocket", "Pocket003")
pocket4.Profile = sketch5
pocket4.setExpression("Length", "Params.pocket4_length")

doc.recompute()
